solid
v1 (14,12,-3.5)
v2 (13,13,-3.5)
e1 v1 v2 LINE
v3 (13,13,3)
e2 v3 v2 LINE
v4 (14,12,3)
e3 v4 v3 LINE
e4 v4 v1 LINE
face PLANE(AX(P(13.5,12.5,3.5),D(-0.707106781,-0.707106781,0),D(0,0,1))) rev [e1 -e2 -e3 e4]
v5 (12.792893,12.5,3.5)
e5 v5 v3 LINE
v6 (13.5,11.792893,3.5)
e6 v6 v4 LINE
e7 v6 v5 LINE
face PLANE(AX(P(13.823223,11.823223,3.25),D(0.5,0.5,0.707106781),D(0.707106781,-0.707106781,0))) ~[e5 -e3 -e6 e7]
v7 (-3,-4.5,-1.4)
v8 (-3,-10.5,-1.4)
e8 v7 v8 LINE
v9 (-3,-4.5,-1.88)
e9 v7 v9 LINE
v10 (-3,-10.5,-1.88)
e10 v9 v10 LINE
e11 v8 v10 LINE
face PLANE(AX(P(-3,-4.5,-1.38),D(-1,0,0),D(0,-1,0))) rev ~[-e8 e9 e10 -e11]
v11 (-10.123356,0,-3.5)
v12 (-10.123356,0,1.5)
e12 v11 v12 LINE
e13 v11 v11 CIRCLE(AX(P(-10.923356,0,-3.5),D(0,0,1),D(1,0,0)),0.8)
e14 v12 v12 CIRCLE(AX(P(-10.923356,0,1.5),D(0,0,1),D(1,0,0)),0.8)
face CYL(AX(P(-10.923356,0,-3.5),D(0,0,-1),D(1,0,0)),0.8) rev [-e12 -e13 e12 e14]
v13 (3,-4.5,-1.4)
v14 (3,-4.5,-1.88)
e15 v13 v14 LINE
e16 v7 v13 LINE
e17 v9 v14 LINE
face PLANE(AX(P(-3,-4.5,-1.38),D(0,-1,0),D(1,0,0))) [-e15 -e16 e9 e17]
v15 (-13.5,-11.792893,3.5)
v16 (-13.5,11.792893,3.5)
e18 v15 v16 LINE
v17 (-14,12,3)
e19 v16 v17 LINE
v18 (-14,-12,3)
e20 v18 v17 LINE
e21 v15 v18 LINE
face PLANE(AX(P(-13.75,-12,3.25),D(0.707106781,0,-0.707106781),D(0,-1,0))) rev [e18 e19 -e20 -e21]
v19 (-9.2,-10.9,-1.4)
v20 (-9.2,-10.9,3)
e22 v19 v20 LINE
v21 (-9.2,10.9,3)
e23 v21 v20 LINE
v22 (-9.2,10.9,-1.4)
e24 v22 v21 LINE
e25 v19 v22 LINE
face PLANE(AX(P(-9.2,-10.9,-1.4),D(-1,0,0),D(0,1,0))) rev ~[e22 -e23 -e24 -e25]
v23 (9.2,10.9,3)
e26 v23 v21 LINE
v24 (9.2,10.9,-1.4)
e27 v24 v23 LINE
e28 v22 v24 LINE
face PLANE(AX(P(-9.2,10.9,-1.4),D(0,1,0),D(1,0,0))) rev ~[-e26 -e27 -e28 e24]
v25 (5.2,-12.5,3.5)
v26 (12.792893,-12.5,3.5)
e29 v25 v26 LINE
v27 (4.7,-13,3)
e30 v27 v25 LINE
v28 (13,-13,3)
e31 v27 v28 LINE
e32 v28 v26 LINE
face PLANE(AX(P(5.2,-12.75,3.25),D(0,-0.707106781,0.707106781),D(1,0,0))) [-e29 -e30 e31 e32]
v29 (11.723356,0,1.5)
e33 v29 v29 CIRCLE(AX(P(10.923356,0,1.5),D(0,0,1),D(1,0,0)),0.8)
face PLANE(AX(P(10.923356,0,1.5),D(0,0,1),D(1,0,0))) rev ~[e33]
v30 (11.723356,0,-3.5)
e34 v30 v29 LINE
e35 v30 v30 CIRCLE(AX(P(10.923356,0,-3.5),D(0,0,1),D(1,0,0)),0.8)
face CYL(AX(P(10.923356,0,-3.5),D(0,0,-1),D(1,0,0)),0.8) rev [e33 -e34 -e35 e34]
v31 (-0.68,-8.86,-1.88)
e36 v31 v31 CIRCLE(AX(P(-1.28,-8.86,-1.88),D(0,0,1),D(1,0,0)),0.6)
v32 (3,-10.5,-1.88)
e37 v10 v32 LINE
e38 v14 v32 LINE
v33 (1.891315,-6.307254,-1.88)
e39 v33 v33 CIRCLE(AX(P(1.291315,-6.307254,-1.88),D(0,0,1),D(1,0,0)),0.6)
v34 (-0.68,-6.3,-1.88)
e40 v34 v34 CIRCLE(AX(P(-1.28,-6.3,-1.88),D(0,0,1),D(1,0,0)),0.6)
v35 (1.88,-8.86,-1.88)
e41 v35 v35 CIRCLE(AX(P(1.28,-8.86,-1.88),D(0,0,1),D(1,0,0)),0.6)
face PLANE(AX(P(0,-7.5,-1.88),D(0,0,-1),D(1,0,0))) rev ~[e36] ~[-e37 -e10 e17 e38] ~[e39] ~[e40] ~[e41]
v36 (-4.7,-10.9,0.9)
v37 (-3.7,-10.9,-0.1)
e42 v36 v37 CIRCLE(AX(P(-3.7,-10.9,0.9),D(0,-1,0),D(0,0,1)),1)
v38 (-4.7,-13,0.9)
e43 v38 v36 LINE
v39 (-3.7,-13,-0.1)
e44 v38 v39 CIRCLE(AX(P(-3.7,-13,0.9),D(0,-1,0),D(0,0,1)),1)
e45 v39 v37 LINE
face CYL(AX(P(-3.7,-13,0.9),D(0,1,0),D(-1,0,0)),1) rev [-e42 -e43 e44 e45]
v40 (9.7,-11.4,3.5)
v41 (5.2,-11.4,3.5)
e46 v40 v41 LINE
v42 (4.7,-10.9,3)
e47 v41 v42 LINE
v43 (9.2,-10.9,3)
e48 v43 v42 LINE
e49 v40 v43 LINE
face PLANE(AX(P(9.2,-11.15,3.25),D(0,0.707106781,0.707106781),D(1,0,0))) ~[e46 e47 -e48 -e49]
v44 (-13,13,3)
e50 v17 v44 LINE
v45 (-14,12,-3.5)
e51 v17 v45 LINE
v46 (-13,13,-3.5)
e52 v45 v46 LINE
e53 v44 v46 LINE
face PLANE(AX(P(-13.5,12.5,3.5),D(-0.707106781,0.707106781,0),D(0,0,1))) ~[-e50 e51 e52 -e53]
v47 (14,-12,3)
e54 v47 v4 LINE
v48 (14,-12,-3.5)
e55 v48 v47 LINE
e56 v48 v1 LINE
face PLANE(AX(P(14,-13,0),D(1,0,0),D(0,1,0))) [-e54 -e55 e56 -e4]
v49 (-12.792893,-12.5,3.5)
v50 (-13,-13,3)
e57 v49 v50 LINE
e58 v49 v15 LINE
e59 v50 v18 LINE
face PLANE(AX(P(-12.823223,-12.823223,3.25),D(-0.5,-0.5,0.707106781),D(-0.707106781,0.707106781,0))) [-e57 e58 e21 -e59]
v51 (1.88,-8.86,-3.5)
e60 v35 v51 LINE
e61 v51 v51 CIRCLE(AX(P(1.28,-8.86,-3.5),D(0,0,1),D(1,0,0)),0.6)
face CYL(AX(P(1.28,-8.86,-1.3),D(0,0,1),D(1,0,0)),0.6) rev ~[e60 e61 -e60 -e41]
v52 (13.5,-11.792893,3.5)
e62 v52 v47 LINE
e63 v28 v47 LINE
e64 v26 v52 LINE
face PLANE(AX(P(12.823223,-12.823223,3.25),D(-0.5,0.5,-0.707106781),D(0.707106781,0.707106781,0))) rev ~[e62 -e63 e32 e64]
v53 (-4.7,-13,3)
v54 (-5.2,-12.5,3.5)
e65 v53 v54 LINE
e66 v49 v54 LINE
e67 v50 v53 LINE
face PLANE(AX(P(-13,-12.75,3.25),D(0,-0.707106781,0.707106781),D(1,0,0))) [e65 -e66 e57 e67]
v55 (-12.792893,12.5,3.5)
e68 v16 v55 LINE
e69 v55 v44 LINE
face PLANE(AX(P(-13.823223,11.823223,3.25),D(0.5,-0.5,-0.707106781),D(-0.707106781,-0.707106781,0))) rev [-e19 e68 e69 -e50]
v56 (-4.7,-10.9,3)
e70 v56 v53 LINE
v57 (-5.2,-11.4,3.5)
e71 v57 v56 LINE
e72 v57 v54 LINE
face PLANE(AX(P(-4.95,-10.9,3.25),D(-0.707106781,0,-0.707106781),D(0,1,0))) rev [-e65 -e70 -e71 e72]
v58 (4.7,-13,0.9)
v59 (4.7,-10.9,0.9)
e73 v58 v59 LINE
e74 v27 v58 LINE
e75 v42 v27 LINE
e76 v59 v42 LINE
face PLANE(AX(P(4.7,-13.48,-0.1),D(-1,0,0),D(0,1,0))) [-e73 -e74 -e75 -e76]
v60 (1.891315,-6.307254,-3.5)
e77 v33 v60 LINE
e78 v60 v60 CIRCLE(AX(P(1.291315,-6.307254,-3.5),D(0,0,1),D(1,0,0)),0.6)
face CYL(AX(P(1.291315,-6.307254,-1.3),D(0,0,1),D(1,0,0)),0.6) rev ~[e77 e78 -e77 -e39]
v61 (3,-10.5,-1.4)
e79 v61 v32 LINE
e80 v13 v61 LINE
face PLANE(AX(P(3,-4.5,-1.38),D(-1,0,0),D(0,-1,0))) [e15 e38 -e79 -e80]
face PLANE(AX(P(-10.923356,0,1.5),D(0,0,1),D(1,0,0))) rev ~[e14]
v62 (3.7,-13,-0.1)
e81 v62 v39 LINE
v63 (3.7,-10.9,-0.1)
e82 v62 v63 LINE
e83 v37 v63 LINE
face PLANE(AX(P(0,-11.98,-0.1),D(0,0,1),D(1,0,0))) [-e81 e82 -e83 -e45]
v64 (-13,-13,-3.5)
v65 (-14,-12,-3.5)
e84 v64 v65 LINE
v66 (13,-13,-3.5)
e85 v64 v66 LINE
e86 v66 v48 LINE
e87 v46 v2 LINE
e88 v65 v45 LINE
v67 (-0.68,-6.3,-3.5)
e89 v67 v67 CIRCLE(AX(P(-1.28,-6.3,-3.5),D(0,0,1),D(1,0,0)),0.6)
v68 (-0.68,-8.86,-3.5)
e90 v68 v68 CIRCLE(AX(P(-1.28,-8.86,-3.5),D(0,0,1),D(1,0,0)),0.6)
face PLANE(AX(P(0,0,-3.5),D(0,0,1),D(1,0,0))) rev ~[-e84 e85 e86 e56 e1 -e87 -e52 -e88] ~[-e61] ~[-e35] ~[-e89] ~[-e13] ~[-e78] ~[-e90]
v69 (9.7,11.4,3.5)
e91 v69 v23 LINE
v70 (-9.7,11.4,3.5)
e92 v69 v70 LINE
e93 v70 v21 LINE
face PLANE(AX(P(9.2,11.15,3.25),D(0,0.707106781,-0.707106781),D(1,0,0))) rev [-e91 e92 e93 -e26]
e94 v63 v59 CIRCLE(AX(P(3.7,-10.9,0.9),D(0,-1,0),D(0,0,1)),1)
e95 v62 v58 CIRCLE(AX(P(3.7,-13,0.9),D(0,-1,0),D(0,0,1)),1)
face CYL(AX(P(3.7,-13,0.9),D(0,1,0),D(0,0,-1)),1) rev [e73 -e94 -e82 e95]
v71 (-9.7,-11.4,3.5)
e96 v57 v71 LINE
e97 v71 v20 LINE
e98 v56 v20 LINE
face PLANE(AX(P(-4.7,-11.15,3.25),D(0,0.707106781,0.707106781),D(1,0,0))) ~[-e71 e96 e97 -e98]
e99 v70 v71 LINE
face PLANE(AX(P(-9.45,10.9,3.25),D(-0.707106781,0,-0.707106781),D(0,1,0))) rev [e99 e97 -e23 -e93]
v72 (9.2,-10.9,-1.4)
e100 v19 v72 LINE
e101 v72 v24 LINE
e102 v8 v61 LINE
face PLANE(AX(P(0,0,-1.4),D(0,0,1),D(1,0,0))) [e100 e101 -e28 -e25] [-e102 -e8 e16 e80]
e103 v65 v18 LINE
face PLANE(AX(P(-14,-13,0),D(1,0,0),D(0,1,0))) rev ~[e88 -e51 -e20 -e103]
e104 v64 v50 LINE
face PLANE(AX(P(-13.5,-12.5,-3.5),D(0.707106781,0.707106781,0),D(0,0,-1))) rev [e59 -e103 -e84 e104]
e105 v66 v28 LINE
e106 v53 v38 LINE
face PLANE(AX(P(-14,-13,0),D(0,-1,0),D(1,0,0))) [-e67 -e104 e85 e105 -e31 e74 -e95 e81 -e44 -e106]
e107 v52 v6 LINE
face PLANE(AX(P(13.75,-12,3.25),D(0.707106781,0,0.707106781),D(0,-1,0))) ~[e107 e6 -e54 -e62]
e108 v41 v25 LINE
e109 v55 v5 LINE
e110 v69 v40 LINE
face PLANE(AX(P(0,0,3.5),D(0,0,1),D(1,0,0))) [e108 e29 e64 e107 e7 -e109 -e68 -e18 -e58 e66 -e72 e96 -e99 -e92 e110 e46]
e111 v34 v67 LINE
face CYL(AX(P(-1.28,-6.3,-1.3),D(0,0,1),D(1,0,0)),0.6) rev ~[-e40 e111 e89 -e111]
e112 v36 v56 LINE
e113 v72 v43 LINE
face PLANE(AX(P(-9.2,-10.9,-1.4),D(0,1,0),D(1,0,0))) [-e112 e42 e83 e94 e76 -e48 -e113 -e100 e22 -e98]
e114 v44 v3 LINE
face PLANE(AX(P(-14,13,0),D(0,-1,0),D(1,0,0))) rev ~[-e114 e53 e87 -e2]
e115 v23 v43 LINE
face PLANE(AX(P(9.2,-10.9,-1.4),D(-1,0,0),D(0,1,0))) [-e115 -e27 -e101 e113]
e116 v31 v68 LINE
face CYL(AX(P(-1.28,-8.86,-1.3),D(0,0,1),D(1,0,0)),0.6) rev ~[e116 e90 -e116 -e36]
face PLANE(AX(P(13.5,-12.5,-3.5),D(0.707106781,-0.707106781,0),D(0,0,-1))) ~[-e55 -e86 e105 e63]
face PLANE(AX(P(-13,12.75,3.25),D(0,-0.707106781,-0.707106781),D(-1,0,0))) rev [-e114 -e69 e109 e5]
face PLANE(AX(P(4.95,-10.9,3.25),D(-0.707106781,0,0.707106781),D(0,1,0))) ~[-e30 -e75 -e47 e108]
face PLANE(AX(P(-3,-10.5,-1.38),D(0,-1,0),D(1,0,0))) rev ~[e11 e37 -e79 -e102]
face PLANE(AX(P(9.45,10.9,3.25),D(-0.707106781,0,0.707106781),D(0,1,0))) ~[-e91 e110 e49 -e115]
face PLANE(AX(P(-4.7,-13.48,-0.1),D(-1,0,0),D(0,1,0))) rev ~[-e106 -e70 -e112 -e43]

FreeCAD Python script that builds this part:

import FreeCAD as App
import Part
import Sketcher


def edges_at(feature, points):
    """Names of the edges that pass closest to the given points."""
    edges = feature.Shape.Edges
    near = lambda p: min(range(len(edges)), key=lambda i: edges[i].distToShape(Part.Vertex(*p))[0])
    return sorted({f"Edge{near(p) + 1}" for p in points})

doc = App.newDocument("Part")
body = doc.addObject("PartDesign::Body", "Body")

# Sketch on XY plane
sketch1 = doc.addObject("Sketcher::SketchObject", "Sketch")
body.addObject(sketch1)
sketch1.AttachmentSupport = (doc.XY_Plane, [""])
sketch1.MapMode = "FlatFace"
sketch1.addGeometry([
    Part.LineSegment(App.Vector(-14, 13, 0), App.Vector(-14, -13, 0)),
    Part.LineSegment(App.Vector(-14, -13, 0), App.Vector(14, -13, 0)),
    Part.LineSegment(App.Vector(14, -13, 0), App.Vector(14, 13, 0)),
    Part.LineSegment(App.Vector(14, 13, 0), App.Vector(-14, 13, 0)),
], False)
sketch1.addConstraint([
    Sketcher.Constraint("Coincident", 0, 2, 1, 1),
    Sketcher.Constraint("Coincident", 1, 2, 2, 1),
    Sketcher.Constraint("Coincident", 2, 2, 3, 1),
    Sketcher.Constraint("Coincident", 3, 2, 0, 1),
    Sketcher.Constraint("Vertical", 0),
    Sketcher.Constraint("Horizontal", 1),
    Sketcher.Constraint("Vertical", 2),
    Sketcher.Constraint("Horizontal", 3),
    Sketcher.Constraint("Symmetric", 0, 2, 2, 2, -1, 1),
    Sketcher.Constraint("DistanceX", 1, 1, 1, 2, 28.0),
    Sketcher.Constraint("DistanceY", 0, 2, 0, 1, 26.0),
])
pad1 = doc.addObject("PartDesign::Pad", "Pad")
body.addObject(pad1)
pad1.Profile = sketch1
pad1.Length = 7
pad1.Midplane = True

# Sketch on XY plane
sketch2 = doc.addObject("Sketcher::SketchObject", "Sketch001")
body.addObject(sketch2)
sketch2.AttachmentSupport = (doc.XY_Plane, [""])
sketch2.MapMode = "FlatFace"
sketch2.AttachmentOffset = App.Placement(App.Vector(0, 0, -1.4), App.Rotation())
sketch2.addGeometry([
    Part.LineSegment(App.Vector(-9, 11, 0), App.Vector(-9, -11, 0)),
    Part.LineSegment(App.Vector(-9, -11, 0), App.Vector(9, -11, 0)),
    Part.LineSegment(App.Vector(9, -11, 0), App.Vector(9, 11, 0)),
    Part.LineSegment(App.Vector(9, 11, 0), App.Vector(-9, 11, 0)),
], False)
sketch2.addConstraint([
    Sketcher.Constraint("Coincident", 0, 2, 1, 1),
    Sketcher.Constraint("Coincident", 1, 2, 2, 1),
    Sketcher.Constraint("Coincident", 2, 2, 3, 1),
    Sketcher.Constraint("Coincident", 3, 2, 0, 1),
    Sketcher.Constraint("Vertical", 0),
    Sketcher.Constraint("Horizontal", 1),
    Sketcher.Constraint("Vertical", 2),
    Sketcher.Constraint("Horizontal", 3),
    Sketcher.Constraint("Symmetric", 0, 2, 2, 2, -1, 1),
    Sketcher.Constraint("DistanceX", 1, 1, 1, 2, 18.4),
    Sketcher.Constraint("DistanceY", 0, 2, 0, 1, 21.8),
])
pocket1 = doc.addObject("PartDesign::Pocket", "Pocket")
body.addObject(pocket1)
pocket1.Profile = sketch2
pocket1.Length = 5
pocket1.Reversed = True

# Sketch on XY plane
sketch3 = doc.addObject("Sketcher::SketchObject", "Sketch002")
body.addObject(sketch3)
sketch3.AttachmentSupport = (doc.XY_Plane, [""])
sketch3.MapMode = "FlatFace"
sketch3.AttachmentOffset = App.Placement(App.Vector(0, 0, -0.1), App.Rotation())
sketch3.addGeometry([
    Part.LineSegment(App.Vector(-4.7, -10.5, 0), App.Vector(-4.7, -13.5, 0)),
    Part.LineSegment(App.Vector(-4.7, -13.5, 0), App.Vector(4.7, -13.5, 0)),
    Part.LineSegment(App.Vector(4.7, -13.5, 0), App.Vector(4.7, -10.5, 0)),
    Part.LineSegment(App.Vector(4.7, -10.5, 0), App.Vector(-4.7, -10.5, 0)),
], False)
sketch3.addConstraint([
    Sketcher.Constraint("Coincident", 0, 2, 1, 1),
    Sketcher.Constraint("Coincident", 1, 2, 2, 1),
    Sketcher.Constraint("Coincident", 2, 2, 3, 1),
    Sketcher.Constraint("Coincident", 3, 2, 0, 1),
    Sketcher.Constraint("Vertical", 0),
    Sketcher.Constraint("Horizontal", 1),
    Sketcher.Constraint("Vertical", 2),
    Sketcher.Constraint("Horizontal", 3),
    Sketcher.Constraint("DistanceY", 0, 2, 0, 1, 3.0),
    Sketcher.Constraint("DistanceX", 1, 1, 1, 2, 9.4),
    Sketcher.Constraint("DistanceX", 0, 2, -1, 1, 4.7),
    Sketcher.Constraint("DistanceY", 0, 2, -1, 1, 13.48),
])
pocket2 = doc.addObject("PartDesign::Pocket", "Pocket001")
body.addObject(pocket2)
pocket2.Profile = sketch3
pocket2.Length = 5
pocket2.Reversed = True

# Sketch on XY plane
sketch4 = doc.addObject("Sketcher::SketchObject", "Sketch003")
body.addObject(sketch4)
sketch4.AttachmentSupport = (doc.XY_Plane, [""])
sketch4.MapMode = "FlatFace"
sketch4.AttachmentOffset = App.Placement(App.Vector(0, 0, -1.38), App.Rotation())
sketch4.addGeometry([
    Part.LineSegment(App.Vector(-3, -10, 0), App.Vector(-3, -4, 0)),
    Part.LineSegment(App.Vector(-3, -4, 0), App.Vector(3, -4, 0)),
    Part.LineSegment(App.Vector(3, -4, 0), App.Vector(3, -10, 0)),
    Part.LineSegment(App.Vector(3, -10, 0), App.Vector(-3, -10, 0)),
], False)
sketch4.addConstraint([
    Sketcher.Constraint("Coincident", 0, 2, 1, 1),
    Sketcher.Constraint("Coincident", 1, 2, 2, 1),
    Sketcher.Constraint("Coincident", 2, 2, 3, 1),
    Sketcher.Constraint("Coincident", 3, 2, 0, 1),
    Sketcher.Constraint("Vertical", 0),
    Sketcher.Constraint("Horizontal", 1),
    Sketcher.Constraint("Vertical", 2),
    Sketcher.Constraint("Horizontal", 3),
    Sketcher.Constraint("Equal", 3, 0),
    Sketcher.Constraint("DistanceX", 1, 1, 1, 2, 6.0),
    Sketcher.Constraint("DistanceX", 0, 2, -1, 1, 3.0),
    Sketcher.Constraint("DistanceY", 0, 2, -1, 1, 4.5),
])
pocket3 = doc.addObject("PartDesign::Pocket", "Pocket002")
body.addObject(pocket3)
pocket3.Profile = sketch4
pocket3.Length = 0.5

# Sketch on XY plane
sketch5 = doc.addObject("Sketcher::SketchObject", "Sketch004")
body.addObject(sketch5)
sketch5.AttachmentSupport = (doc.XY_Plane, [""])
sketch5.MapMode = "FlatFace"
sketch5.AttachmentOffset = App.Placement(App.Vector(0, 0, -1.3), App.Rotation())
sketch5.addGeometry([
    Part.Circle(App.Vector(-1.3, -6.3, 0), App.Vector(0, 0, 1), 0.6),
    Part.Circle(App.Vector(1.3, -6.3, 0), App.Vector(0, 0, 1), 0.6),
    Part.Circle(App.Vector(-1.3, -8.9, 0), App.Vector(0, 0, 1), 0.6),
    Part.Circle(App.Vector(1.3, -8.9, 0), App.Vector(0, 0, 1), 0.6),
], False)
sketch5.addConstraint([
    Sketcher.Constraint("Equal", 0, 1),
    Sketcher.Constraint("Equal", 1, 2),
    Sketcher.Constraint("Equal", 2, 3),
    Sketcher.Constraint("Symmetric", 2, 3, 3, 3, -2),
    Sketcher.Constraint("Vertical", 0, 3, 2, 3),
    Sketcher.Constraint("Diameter", 0, 1.2),
    Sketcher.Constraint("DistanceY", 0, 3, -1, 1, 6.3),
    Sketcher.Constraint("DistanceX", 0, 3, -1, 1, 1.28),
    Sketcher.Constraint("DistanceY", 2, 3, -1, 1, 8.86),
    Sketcher.Constraint("DistanceX", -1, 1, 1, 3, 1.291315),
    Sketcher.Constraint("DistanceY", 1, 3, -1, 1, 6.307254),
])
pocket4 = doc.addObject("PartDesign::Pocket", "Pocket003")
body.addObject(pocket4)
pocket4.Profile = sketch5
pocket4.Length = 5

# Sketch on XY plane
sketch6 = doc.addObject("Sketcher::SketchObject", "Sketch005")
body.addObject(sketch6)
sketch6.AttachmentSupport = (doc.XY_Plane, [""])
sketch6.MapMode = "FlatFace"
sketch6.AttachmentOffset = App.Placement(App.Vector(0, 0, -3.5), App.Rotation())
sketch6.addGeometry([
    Part.Circle(App.Vector(-10.9, 0, 0), App.Vector(0, 0, 1), 0.8),
    Part.Circle(App.Vector(10.9, 0, 0), App.Vector(0, 0, 1), 0.8),
], False)
sketch6.addConstraint([
    Sketcher.Constraint("Equal", 0, 1),
    Sketcher.Constraint("Symmetric", 0, 3, 1, 3, -1, 1),
    Sketcher.Constraint("PointOnObject", 0, 3, -1),
    Sketcher.Constraint("Diameter", 0, 1.6),
    Sketcher.Constraint("DistanceX", 0, 3, 1, 3, 21.846712),
])
pocket5 = doc.addObject("PartDesign::Pocket", "Pocket004")
body.addObject(pocket5)
pocket5.Profile = sketch6
pocket5.Length = 5
pocket5.Reversed = True
doc.recompute()

chamfer = doc.addObject("PartDesign::Chamfer", "Chamfer")
body.addObject(chamfer)
chamfer.Base = (pocket5, edges_at(pocket5, [
    (-9.2, 0, 3.5),
    (-4.7, -11.95, 3.5),
    (-6.95, -10.9, 3.5),
    (4.7, -11.95, 3.5),
    (6.95, -10.9, 3.5),
    (9.2, 0, 3.5),
    (0, 10.9, 3.5),
]))
chamfer.Size = 0.5
doc.recompute()

fillet = doc.addObject("PartDesign::Fillet", "Fillet")
body.addObject(fillet)
fillet.Base = (chamfer, edges_at(chamfer, [(-4.7, -11.95, -0.1), (4.7, -11.95, -0.1)]))
fillet.Radius = 1
doc.recompute()

chamfer2 = doc.addObject("PartDesign::Chamfer", "Chamfer001")
body.addObject(chamfer2)
chamfer2.Base = (fillet, edges_at(fillet, [
    (14, -13, 0),
    (14, 13, 0),
    (-14, 13, 0),
    (-14, -13, 0),
]))
chamfer2.Size = 1
doc.recompute()

chamfer3 = doc.addObject("PartDesign::Chamfer", "Chamfer002")
body.addObject(chamfer3)
chamfer3.Base = (chamfer2, edges_at(chamfer2, [
    (-14, 0, 3.5),
    (-13.5, -12.5, 3.5),
    (-9.1, -13, 3.5),
    (9.1, -13, 3.5),
    (13.5, -12.5, 3.5),
    (14, 0, 3.5),
    (-13.5, 12.5, 3.5),
    (0, 13, 3.5),
    (13.5, 12.5, 3.5),
]))
chamfer3.Size = 0.5

doc.recompute()
